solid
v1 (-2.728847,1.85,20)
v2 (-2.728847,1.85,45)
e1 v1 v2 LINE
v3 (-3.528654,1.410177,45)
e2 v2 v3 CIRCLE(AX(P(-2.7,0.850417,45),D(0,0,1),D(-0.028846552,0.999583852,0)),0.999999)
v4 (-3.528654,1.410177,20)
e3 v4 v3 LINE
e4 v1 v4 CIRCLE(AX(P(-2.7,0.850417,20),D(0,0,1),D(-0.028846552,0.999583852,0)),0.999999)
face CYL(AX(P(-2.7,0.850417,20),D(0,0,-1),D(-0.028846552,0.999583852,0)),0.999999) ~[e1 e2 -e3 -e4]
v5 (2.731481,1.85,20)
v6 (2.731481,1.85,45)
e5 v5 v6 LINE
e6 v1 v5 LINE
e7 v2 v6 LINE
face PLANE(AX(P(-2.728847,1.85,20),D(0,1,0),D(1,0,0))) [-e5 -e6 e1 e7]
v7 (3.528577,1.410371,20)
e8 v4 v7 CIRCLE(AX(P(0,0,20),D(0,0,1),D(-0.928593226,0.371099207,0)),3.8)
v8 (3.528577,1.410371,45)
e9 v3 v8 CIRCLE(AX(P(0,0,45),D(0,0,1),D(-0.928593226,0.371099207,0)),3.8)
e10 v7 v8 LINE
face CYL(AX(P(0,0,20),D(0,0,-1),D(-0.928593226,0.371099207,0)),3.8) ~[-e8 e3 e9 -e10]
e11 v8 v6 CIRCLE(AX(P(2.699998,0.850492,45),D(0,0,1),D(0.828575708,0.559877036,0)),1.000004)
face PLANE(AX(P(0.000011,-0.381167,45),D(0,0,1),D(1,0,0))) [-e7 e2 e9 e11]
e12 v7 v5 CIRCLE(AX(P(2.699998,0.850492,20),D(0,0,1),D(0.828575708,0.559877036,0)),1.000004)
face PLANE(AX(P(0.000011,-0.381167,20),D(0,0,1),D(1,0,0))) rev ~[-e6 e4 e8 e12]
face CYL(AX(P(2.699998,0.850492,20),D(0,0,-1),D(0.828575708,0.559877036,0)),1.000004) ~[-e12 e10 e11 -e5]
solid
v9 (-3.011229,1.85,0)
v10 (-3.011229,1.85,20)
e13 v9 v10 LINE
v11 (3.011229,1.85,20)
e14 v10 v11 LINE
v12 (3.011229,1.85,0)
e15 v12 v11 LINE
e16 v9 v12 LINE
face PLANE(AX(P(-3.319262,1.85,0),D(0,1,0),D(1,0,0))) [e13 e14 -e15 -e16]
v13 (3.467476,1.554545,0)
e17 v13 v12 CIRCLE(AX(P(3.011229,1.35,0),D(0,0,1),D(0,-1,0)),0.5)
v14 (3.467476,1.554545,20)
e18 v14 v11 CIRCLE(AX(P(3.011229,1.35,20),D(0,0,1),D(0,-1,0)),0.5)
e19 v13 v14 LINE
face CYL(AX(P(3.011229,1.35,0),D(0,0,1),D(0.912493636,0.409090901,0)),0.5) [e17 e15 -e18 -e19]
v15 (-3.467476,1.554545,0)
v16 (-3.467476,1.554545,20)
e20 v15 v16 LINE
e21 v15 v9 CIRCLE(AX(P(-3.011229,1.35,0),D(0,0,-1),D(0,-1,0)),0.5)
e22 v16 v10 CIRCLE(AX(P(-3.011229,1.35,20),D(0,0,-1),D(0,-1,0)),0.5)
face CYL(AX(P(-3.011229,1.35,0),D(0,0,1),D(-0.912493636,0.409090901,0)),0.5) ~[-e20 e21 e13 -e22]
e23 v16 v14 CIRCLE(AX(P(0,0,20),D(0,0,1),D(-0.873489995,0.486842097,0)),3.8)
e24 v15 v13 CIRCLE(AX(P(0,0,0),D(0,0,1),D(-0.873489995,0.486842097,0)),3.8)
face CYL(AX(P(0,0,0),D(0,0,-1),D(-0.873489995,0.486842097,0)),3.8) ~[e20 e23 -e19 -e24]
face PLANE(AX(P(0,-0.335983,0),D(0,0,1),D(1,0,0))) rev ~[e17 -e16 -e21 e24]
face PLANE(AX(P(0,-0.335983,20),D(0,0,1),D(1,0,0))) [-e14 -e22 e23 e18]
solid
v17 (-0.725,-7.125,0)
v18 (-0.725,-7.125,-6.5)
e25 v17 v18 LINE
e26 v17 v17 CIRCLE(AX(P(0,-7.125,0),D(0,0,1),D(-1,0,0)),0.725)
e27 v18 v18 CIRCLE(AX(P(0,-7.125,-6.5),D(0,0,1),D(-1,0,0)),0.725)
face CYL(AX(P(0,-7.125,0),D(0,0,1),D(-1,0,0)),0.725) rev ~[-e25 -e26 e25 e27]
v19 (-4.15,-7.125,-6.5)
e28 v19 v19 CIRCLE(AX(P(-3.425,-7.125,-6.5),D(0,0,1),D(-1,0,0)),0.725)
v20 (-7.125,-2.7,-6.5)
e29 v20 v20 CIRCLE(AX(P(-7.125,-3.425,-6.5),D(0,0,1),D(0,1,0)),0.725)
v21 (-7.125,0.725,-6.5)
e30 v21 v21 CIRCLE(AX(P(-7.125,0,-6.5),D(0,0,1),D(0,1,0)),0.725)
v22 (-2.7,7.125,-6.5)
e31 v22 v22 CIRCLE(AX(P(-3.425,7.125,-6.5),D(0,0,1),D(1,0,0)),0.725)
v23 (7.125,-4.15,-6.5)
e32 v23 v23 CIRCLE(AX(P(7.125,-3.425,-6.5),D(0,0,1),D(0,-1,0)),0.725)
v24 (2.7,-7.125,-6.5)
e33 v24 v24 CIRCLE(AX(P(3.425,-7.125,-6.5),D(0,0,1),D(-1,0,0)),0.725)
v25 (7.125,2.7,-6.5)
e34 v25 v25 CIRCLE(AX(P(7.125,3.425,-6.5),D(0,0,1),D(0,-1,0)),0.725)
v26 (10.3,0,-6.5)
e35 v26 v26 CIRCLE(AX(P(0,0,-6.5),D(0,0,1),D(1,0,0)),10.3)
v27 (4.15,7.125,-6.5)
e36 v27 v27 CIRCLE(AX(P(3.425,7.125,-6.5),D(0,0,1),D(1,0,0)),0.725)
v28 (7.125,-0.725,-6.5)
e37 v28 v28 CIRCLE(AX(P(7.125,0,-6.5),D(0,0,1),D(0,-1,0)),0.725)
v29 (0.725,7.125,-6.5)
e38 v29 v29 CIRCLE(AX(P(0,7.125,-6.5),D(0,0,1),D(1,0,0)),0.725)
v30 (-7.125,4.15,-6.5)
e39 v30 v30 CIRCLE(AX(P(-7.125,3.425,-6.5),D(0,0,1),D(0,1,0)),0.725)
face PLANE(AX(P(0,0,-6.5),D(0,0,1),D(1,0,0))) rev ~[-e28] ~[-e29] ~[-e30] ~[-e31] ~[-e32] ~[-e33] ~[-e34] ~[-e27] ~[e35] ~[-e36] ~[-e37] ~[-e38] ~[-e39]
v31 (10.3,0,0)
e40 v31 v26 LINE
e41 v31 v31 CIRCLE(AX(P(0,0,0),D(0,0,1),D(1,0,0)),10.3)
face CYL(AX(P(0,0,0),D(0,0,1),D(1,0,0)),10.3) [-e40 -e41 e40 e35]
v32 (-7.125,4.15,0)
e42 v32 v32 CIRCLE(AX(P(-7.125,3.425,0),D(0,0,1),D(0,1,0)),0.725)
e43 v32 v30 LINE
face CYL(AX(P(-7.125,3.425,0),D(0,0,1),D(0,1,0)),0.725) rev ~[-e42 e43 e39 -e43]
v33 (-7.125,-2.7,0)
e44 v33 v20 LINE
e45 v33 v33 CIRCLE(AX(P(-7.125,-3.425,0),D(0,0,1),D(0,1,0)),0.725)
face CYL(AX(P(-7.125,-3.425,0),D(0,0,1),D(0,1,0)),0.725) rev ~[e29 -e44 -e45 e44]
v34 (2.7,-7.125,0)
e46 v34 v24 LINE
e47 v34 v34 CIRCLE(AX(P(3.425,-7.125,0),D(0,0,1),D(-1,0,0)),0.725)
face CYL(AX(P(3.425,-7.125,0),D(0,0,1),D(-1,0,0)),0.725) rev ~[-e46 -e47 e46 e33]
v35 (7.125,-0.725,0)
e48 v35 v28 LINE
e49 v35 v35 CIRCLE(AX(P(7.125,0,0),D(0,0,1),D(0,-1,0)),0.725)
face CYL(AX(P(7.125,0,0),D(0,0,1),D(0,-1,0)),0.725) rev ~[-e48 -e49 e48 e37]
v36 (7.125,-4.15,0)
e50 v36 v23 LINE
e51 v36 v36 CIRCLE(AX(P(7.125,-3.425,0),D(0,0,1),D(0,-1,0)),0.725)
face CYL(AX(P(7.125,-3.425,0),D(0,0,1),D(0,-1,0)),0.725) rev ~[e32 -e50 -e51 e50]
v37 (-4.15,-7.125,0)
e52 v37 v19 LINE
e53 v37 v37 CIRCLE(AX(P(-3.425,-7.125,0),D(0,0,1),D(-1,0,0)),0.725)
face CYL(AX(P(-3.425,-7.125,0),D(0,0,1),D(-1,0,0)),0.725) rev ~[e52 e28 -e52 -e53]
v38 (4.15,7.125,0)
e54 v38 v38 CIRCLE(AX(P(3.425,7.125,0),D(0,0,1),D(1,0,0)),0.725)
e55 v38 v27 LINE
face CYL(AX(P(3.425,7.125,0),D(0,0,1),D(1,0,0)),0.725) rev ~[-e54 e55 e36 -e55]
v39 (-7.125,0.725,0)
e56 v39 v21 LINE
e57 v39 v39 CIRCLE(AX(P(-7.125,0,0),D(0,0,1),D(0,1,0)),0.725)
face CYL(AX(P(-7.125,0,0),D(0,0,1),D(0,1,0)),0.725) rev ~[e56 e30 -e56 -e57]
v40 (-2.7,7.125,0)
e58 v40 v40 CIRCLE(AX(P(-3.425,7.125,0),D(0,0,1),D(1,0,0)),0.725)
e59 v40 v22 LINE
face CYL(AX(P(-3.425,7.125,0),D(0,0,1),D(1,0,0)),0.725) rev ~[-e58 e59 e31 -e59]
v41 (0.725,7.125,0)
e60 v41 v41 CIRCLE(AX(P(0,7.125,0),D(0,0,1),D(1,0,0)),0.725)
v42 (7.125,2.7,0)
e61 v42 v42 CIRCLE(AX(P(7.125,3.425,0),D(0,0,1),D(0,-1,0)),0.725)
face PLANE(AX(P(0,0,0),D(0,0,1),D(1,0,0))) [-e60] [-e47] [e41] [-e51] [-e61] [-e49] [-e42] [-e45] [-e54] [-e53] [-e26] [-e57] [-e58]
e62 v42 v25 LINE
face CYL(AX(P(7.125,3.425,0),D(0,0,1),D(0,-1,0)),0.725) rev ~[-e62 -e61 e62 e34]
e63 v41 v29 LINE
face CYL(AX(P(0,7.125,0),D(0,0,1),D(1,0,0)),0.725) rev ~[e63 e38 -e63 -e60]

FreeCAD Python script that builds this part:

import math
import FreeCAD as App
import Part
import Sketcher
Q = App.Units.Quantity


def edges_at(feature, points):
    """Names of the edges that pass closest to the given points."""
    edges = feature.Shape.Edges
    near = lambda p: min(range(len(edges)), key=lambda i: edges[i].distToShape(Part.Vertex(*p))[0])
    return sorted({f"Edge{near(p) + 1}" for p in points})

doc = App.newDocument("Part")
body = doc.addObject("PartDesign::Body", "Body")

# Sketch on XY plane
sketch1 = doc.addObject("Sketcher::SketchObject", "Sketch")
body.addObject(sketch1)
sketch1.AttachmentSupport = (doc.XY_Plane, [""])
sketch1.MapMode = "FlatFace"
sketch1.AttachmentOffset = App.Placement(App.Vector(0, 0, 20), App.Rotation())
sketch1.addGeometry([
    Part.ArcOfCircle(Part.Circle(App.Vector(-2.7, 0.850417, 0), App.Vector(0, 0, 1), 0.999999), math.radians(91.653015), math.radians(145.960779)),
    Part.ArcOfCircle(Part.Circle(App.Vector(0, 0, 0), App.Vector(0, 0, 1), 3.8), math.radians(158.216576), math.radians(381.786574)),
    Part.ArcOfCircle(Part.Circle(App.Vector(2.699998, 0.850492, 0), App.Vector(0, 0, 1), 1.000004), math.radians(34.047294), math.radians(88.195866)),
    Part.LineSegment(App.Vector(2.731481, 1.85, 0), App.Vector(-2.728847, 1.85, 0)),
], False)
sketch1.addConstraint([
    Sketcher.Constraint("Coincident", 0, 2, 1, 1),
    Sketcher.Constraint("Coincident", 1, 2, 2, 1),
    Sketcher.Constraint("Coincident", 2, 2, 3, 1),
    Sketcher.Constraint("Coincident", 3, 2, 0, 1),
    Sketcher.Constraint("Horizontal", 3),
    Sketcher.Constraint("Coincident", 1, 3, -1, 1),
    Sketcher.Constraint("Radius", 0, Q("0.999999 mm")),
    Sketcher.Constraint("Radius", 1, Q("3.8 mm")),
    Sketcher.Constraint("DistanceX", 0, 3, -1, 1, Q("2.7 mm")),
    Sketcher.Constraint("DistanceX", -1, 1, 2, 3, Q("2.699998 mm")),
    Sketcher.Constraint("DistanceY", -1, 1, 2, 2, Q("1.85 mm")),
    Sketcher.Constraint("Radius", 2, Q("1.000004 mm")),
    Sketcher.Constraint("DistanceX", 3, 2, 3, 1, Q("5.460328 mm")),
    Sketcher.Constraint("DistanceY", -1, 1, 2, 3, Q("0.850492 mm")),
])
pad1 = doc.addObject("PartDesign::Pad", "Pad")
body.addObject(pad1)
pad1.Profile = sketch1
pad1.Length = 25
body2 = doc.addObject("PartDesign::Body", "Body001")

# Sketch on XY plane
sketch2 = doc.addObject("Sketcher::SketchObject", "Sketch001")
body2.addObject(sketch2)
sketch2.AttachmentSupport = (doc.getObject("XY_Plane001"), [""])
sketch2.MapMode = "FlatFace"
sketch2.addGeometry(Part.Circle(App.Vector(0, 0, 0), App.Vector(0, 0, 1), 10.3), False)
sketch2.addConstraint([
    Sketcher.Constraint("Coincident", 0, 3, -1, 1),
    Sketcher.Constraint("Diameter", 0, Q("20.6 mm")),
])
pad2 = doc.addObject("PartDesign::Pad", "Pad001")
body2.addObject(pad2)
pad2.Profile = sketch2
pad2.Length = 6.5
pad2.Reversed = True

# Sketch on XY plane
sketch3 = doc.addObject("Sketcher::SketchObject", "Sketch002")
body2.addObject(sketch3)
sketch3.AttachmentSupport = (doc.getObject("XY_Plane001"), [""])
sketch3.MapMode = "FlatFace"
sketch3.addGeometry([
    Part.Circle(App.Vector(0, 7.125, 0), App.Vector(0, 0, 1), 0.725),
    Part.Circle(App.Vector(3.425, 7.125, 0), App.Vector(0, 0, 1), 0.725),
    Part.Circle(App.Vector(-3.425, 7.125, 0), App.Vector(0, 0, 1), 0.725),
], False)
sketch3.addConstraint([
    Sketcher.Constraint("Equal", 0, 1),
    Sketcher.Constraint("Equal", 1, 2),
    Sketcher.Constraint("Symmetric", 1, 3, 2, 3, -2),
    Sketcher.Constraint("PointOnObject", 0, 3, -2),
    Sketcher.Constraint("Horizontal", 0, 3, 1, 3),
    Sketcher.Constraint("Diameter", 0, Q("1.45 mm")),
    Sketcher.Constraint("DistanceX", 2, 3, 1, 3, Q("6.85 mm")),
    Sketcher.Constraint("DistanceY", -1, 1, 0, 3, Q("7.125 mm")),
])
pocket1 = doc.addObject("PartDesign::Pocket", "Pocket")
body2.addObject(pocket1)
pocket1.Profile = sketch3
pocket1.Length = 10
doc.recompute()

polarpattern = doc.addObject("PartDesign::PolarPattern", "PolarPattern")
body2.addObject(polarpattern)
polarpattern.Originals = [pocket1]
polarpattern.Axis = (doc.getObject("Z_Axis001"), [""])
polarpattern.Angle = 360
polarpattern.Occurrences = 4
body2.Tip = polarpattern
body3 = doc.addObject("PartDesign::Body", "Body002")

# Sketch on XY plane
sketch4 = doc.addObject("Sketcher::SketchObject", "Sketch003")
body3.addObject(sketch4)
sketch4.AttachmentSupport = (doc.getObject("XY_Plane002"), [""])
sketch4.MapMode = "FlatFace"
sketch4.addGeometry([
    Part.ArcOfCircle(Part.Circle(App.Vector(0, 0, 0), App.Vector(0, 0, 1), 3.8), math.radians(150.866768), math.radians(389.133232)),
    Part.LineSegment(App.Vector(3.319262, 1.85, 0), App.Vector(-3.319262, 1.85, 0)),
], False)
sketch4.addConstraint([
    Sketcher.Constraint("Coincident", 0, 1, 1, 2),
    Sketcher.Constraint("Coincident", 1, 1, 0, 2),
    Sketcher.Constraint("Horizontal", 1),
    Sketcher.Constraint("Coincident", 0, 3, -1, 1),
    Sketcher.Constraint("Radius", 0, Q("3.8 mm")),
    Sketcher.Constraint("DistanceY", -1, 1, 0, 1, Q("1.85 mm")),
])
pad3 = doc.addObject("PartDesign::Pad", "Pad002")
body3.addObject(pad3)
pad3.Profile = sketch4
pad3.Length = 20
doc.recompute()

fillet = doc.addObject("PartDesign::Fillet", "Fillet")
body3.addObject(fillet)
fillet.Base = (pad3, edges_at(pad3, [(-3.319, 1.85, 10), (3.319, 1.85, 10)]))
fillet.Radius = 0.5

doc.recompute()
